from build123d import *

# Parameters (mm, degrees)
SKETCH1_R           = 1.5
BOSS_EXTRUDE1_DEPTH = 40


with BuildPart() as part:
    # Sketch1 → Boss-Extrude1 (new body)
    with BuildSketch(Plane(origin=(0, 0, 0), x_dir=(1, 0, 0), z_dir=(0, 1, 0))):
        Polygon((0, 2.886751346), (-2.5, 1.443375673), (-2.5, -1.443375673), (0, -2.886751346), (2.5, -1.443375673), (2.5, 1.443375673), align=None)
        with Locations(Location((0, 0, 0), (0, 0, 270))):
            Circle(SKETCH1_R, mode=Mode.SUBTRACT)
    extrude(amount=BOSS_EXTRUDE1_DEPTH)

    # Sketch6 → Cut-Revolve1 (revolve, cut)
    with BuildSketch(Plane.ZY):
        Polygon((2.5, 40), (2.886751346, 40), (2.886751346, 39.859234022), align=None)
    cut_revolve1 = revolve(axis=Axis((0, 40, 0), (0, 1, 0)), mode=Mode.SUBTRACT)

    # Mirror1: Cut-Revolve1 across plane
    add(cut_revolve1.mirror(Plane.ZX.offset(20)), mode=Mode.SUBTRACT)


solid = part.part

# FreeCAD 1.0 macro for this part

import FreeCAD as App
import Part
import Sketcher
Q = App.Units.Quantity

doc = App.newDocument("Part")
body = doc.addObject("PartDesign::Body", "Body")

sketch1 = doc.addObject("Sketcher::SketchObject", "Sketch")
body.addObject(sketch1)
sketch1.AttachmentSupport = (doc.XZ_Plane, [""])
sketch1.MapMode = "FlatFace"
sketch1.addGeometry(Part.LineSegment(App.Vector(0, -2.9, 0), App.Vector(-2.5, -1.4, 0)), False)
sketch1.addGeometry(Part.LineSegment(App.Vector(-2.5, -1.4, 0), App.Vector(-2.5, 1.4, 0)), False)
sketch1.addGeometry(Part.LineSegment(App.Vector(-2.5, 1.4, 0), App.Vector(0, 2.9, 0)), False)
sketch1.addGeometry(Part.LineSegment(App.Vector(0, 2.9, 0), App.Vector(2.5, 1.4, 0)), False)
sketch1.addGeometry(Part.LineSegment(App.Vector(2.5, 1.4, 0), App.Vector(2.5, -1.4, 0)), False)
sketch1.addGeometry(Part.LineSegment(App.Vector(2.5, -1.4, 0), App.Vector(0, -2.9, 0)), False)
sketch1.addGeometry(Part.Circle(App.Vector(0, 0, 0), App.Vector(0, 0, 1), 1.5), False)
sketch1.addConstraint(Sketcher.Constraint("Coincident", 0, 2, 1, 1))
sketch1.addConstraint(Sketcher.Constraint("Coincident", 1, 2, 2, 1))
sketch1.addConstraint(Sketcher.Constraint("Coincident", 2, 2, 3, 1))
sketch1.addConstraint(Sketcher.Constraint("Coincident", 3, 2, 4, 1))
sketch1.addConstraint(Sketcher.Constraint("Coincident", 4, 2, 5, 1))
sketch1.addConstraint(Sketcher.Constraint("Coincident", 5, 2, 0, 1))
sketch1.addConstraint(Sketcher.Constraint("Vertical", 1))
sketch1.addConstraint(Sketcher.Constraint("Vertical", 4))
sketch1.addConstraint(Sketcher.Constraint("Coincident", 6, 3, -1, 1))
sketch1.addConstraint(Sketcher.Constraint("Symmetric", 0, 2, 3, 2, -1, 1))
sketch1.addConstraint(Sketcher.Constraint("Symmetric", 2, 2, 5, 2, -1, 1))
sketch1.addConstraint(Sketcher.Constraint("PointOnObject", 2, 2, -2))
sketch1.addConstraint(Sketcher.Constraint("Parallel", 2, 5))
sketch1.addConstraint(Sketcher.Constraint("Horizontal", 1, 2, 3, 2))
sketch1.addConstraint(Sketcher.Constraint("Diameter", 6, 3.0))
sketch1.addConstraint(Sketcher.Constraint("Angle", 0, Q("150 deg")))
sketch1.addConstraint(Sketcher.Constraint("DistanceX", 1, 2, 3, 2, 5.0))
sketch1.addConstraint(Sketcher.Constraint("DistanceY", 1, 1, 1, 2, 2.886751))
pad1 = doc.addObject("PartDesign::Pad", "Pad")
body.addObject(pad1)
pad1.Profile = sketch1
pad1.Length = 40
pad1.Reversed = True

sketch2 = doc.addObject("Sketcher::SketchObject", "Sketch001")
body.addObject(sketch2)
sketch2.AttachmentSupport = (doc.YZ_Plane, [""])
sketch2.MapMode = "FlatFace"
sketch2.addGeometry(Part.LineSegment(App.Vector(40, 2.89, 0), App.Vector(40, 2.5, 0)), False)
sketch2.addGeometry(Part.LineSegment(App.Vector(40, 2.5, 0), App.Vector(39.86, 2.89, 0)), False)
sketch2.addGeometry(Part.LineSegment(App.Vector(39.86, 2.89, 0), App.Vector(40, 2.89, 0)), False)
sketch2.addConstraint(Sketcher.Constraint("Coincident", 0, 2, 1, 1))
sketch2.addConstraint(Sketcher.Constraint("Coincident", 1, 2, 2, 1))
sketch2.addConstraint(Sketcher.Constraint("Coincident", 2, 2, 0, 1))
sketch2.addConstraint(Sketcher.Constraint("Vertical", 0))
sketch2.addConstraint(Sketcher.Constraint("Horizontal", 2))
sketch2.addConstraint(Sketcher.Constraint("Angle", 1, Q("110 deg")))
sketch2.addConstraint(Sketcher.Constraint("DistanceX", -1, 1, 0, 2, 40.0))
sketch2.addConstraint(Sketcher.Constraint("DistanceY", -1, 1, 0, 2, 2.5))
sketch2.addConstraint(Sketcher.Constraint("DistanceY", 0, 2, 0, 1, 0.386751))
groove = doc.addObject("PartDesign::Groove", "Groove")
body.addObject(groove)
groove.Profile = sketch2
groove.ReferenceAxis = (sketch2, ["H_Axis"])
groove.Angle = 360
doc.recompute()

datumplane = doc.addObject("PartDesign::Plane", "DatumPlane")
body.addObject(datumplane)
datumplane.AttachmentSupport = (doc.XZ_Plane, [""])
datumplane.MapMode = "FlatFace"
datumplane.AttachmentOffset = App.Placement(App.Vector(0, 0, -20), App.Rotation())
mirrored = doc.addObject("PartDesign::Mirrored", "Mirrored")
body.addObject(mirrored)
mirrored.Originals = [groove]
mirrored.MirrorPlane = (datumplane, [""])
body.Tip = mirrored

doc.recompute()
